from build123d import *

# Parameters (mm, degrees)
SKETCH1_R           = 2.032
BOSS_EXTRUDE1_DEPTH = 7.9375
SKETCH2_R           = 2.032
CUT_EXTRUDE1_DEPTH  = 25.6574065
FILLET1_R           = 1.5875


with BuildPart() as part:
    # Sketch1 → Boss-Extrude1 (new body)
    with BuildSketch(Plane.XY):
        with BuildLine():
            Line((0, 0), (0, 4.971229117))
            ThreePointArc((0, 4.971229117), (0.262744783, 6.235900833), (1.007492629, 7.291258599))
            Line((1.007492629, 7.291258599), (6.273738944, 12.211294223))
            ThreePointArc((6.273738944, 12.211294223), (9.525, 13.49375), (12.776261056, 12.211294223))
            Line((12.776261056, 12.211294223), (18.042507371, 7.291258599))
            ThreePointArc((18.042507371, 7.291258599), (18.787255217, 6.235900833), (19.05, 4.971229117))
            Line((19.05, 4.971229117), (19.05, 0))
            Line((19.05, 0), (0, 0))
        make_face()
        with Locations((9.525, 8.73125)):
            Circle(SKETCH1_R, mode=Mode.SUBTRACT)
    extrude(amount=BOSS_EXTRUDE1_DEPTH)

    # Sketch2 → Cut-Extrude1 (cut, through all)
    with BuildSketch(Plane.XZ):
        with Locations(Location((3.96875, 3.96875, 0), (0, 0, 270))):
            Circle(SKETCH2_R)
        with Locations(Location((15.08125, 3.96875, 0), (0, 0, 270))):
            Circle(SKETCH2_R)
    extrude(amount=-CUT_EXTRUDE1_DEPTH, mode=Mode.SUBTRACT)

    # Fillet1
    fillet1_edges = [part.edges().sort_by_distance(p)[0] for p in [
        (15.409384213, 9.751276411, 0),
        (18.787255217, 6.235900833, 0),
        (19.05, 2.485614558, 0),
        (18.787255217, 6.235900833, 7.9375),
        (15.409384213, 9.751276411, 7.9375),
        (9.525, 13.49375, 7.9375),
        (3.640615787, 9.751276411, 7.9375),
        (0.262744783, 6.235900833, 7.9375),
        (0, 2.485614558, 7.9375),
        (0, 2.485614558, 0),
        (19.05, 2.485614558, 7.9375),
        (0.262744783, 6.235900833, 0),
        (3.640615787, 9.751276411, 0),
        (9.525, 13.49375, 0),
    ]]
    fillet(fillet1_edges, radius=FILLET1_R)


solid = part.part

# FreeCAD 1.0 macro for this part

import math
import FreeCAD as App
import Part
import Sketcher

V = App.Vector
Q = App.Units.Quantity


def edges_at(feature, points):
    """Names of the edges that pass closest to the given points."""
    edges = feature.Shape.Edges
    near = lambda p: min(range(len(edges)), key=lambda i: edges[i].distToShape(Part.Vertex(*p))[0])
    return sorted({f"Edge{near(p) + 1}" for p in points})

doc = App.newDocument("Part")
body = doc.addObject("PartDesign::Body", "Body")

# Sketch on XY plane
sketch1 = body.newObject("Sketcher::SketchObject", "Sketch")
sketch1.AttachmentSupport = (doc.getObject("XY_Plane"), [""])
sketch1.MapMode = "FlatFace"
sketch1.addGeometry(Part.LineSegment(V(0, 5, 0), V(0, 0, 0)), False)
sketch1.addGeometry(Part.LineSegment(V(0, 0, 0), V(19.1, 0, 0)), False)
sketch1.addGeometry(Part.LineSegment(V(19.1, 0, 0), V(19.1, 5, 0)), False)
sketch1.addGeometry(Part.ArcOfCircle(Part.Circle(V(15.9, 5, 0), V(0, 0, 1), 3.2), math.radians(0), math.radians(47)), False)
sketch1.addGeometry(Part.LineSegment(V(18, 7.3, 0), V(12.8, 12.2, 0)), False)
sketch1.addGeometry(Part.ArcOfCircle(Part.Circle(V(9.5, 8.7, 0), V(0, 0, 1), 4.8), math.radians(47), math.radians(133)), False)
sketch1.addGeometry(Part.LineSegment(V(6.3, 12.2, 0), V(1, 7.3, 0)), False)
sketch1.addGeometry(Part.ArcOfCircle(Part.Circle(V(3.2, 5, 0), V(0, 0, 1), 3.2), math.radians(133), math.radians(180)), False)
sketch1.addGeometry(Part.Circle(V(9.5, 8.7, 0), V(0, 0, 1), 2), False)
sketch1.addConstraint(Sketcher.Constraint("Coincident", 0, 2, 1, 1))
sketch1.addConstraint(Sketcher.Constraint("Coincident", 1, 2, 2, 1))
sketch1.addConstraint(Sketcher.Constraint("Tangent", 2, 2, 3, 1))
sketch1.addConstraint(Sketcher.Constraint("Tangent", 3, 2, 4, 1))
sketch1.addConstraint(Sketcher.Constraint("Tangent", 4, 2, 5, 1))
sketch1.addConstraint(Sketcher.Constraint("Tangent", 5, 2, 6, 1))
sketch1.addConstraint(Sketcher.Constraint("Tangent", 6, 2, 7, 1))
sketch1.addConstraint(Sketcher.Constraint("Tangent", 7, 2, 0, 1))
sketch1.addConstraint(Sketcher.Constraint("Vertical", 0))
sketch1.addConstraint(Sketcher.Constraint("Horizontal", 1))
sketch1.addConstraint(Sketcher.Constraint("Vertical", 2))
sketch1.addConstraint(Sketcher.Constraint("Coincident", 0, 2, -1, 1))
sketch1.addConstraint(Sketcher.Constraint("Coincident", 8, 3, 5, 3))
sketch1.addConstraint(Sketcher.Constraint("Equal", 3, 7))
sketch1.addConstraint(Sketcher.Constraint("Horizontal", 3, 3, 7, 3))
sketch1.addConstraint(Sketcher.Constraint("Horizontal", 4, 2, 5, 2))
sketch1.addConstraint(Sketcher.Constraint("Diameter", 8, Q("0.16 in")))
sketch1.addConstraint(Sketcher.Constraint("Radius", 3, Q("0.125 in")))
sketch1.addConstraint(Sketcher.Constraint("Radius", 5, Q("0.1875 in")))
sketch1.addConstraint(Sketcher.Constraint("DistanceX", 1, 1, 1, 2, Q("0.75 in")))
sketch1.addConstraint(Sketcher.Constraint("DistanceY", -1, 1, 5, 3, Q("0.34375 in")))
sketch1.addConstraint(Sketcher.Constraint("DistanceY", 0, 2, 0, 1, Q("4.971229 mm")))
pad1 = body.newObject("PartDesign::Pad", "Pad")
pad1.Profile = sketch1
pad1.Length = Q("0.3125 in")

# Sketch on XZ plane
sketch2 = body.newObject("Sketcher::SketchObject", "Sketch001")
sketch2.AttachmentSupport = (doc.getObject("XZ_Plane"), [""])
sketch2.MapMode = "FlatFace"
sketch2.addGeometry(Part.Circle(V(4, 4, 0), V(0, 0, 1), 2), False)
sketch2.addGeometry(Part.Circle(V(15.1, 4, 0), V(0, 0, 1), 2), False)
sketch2.addConstraint(Sketcher.Constraint("Equal", 0, 1))
sketch2.addConstraint(Sketcher.Constraint("Horizontal", 0, 3, 1, 3))
sketch2.addConstraint(Sketcher.Constraint("Diameter", 0, Q("0.16 in")))
sketch2.addConstraint(Sketcher.Constraint("DistanceX", -1, 1, 0, 3, Q("0.15625 in")))
sketch2.addConstraint(Sketcher.Constraint("DistanceY", -1, 1, 0, 3, Q("0.15625 in")))
sketch2.addConstraint(Sketcher.Constraint("DistanceX", -1, 1, 1, 3, Q("0.59375 in")))
pocket1 = body.newObject("PartDesign::Pocket", "Pocket")
pocket1.Profile = sketch2
pocket1.Type = "ThroughAll"
doc.recompute()

fillet = body.newObject("PartDesign::Fillet", "Fillet")
fillet.Base = (pocket1, edges_at(pocket1, [
    (15.409, 9.751, 0),
    (18.787, 6.236, 0),
    (19.05, 2.486, 0),
    (18.787, 6.236, 7.938),
    (15.409, 9.751, 7.938),
    (9.525, 13.494, 7.938),
    (3.641, 9.751, 7.938),
    (0.263, 6.236, 7.938),
    (0, 2.486, 7.938),
    (0, 2.486, 0),
    (19.05, 2.486, 7.938),
    (0.263, 6.236, 0),
    (3.641, 9.751, 0),
    (9.525, 13.494, 0),
]))
fillet.Radius = Q("0.0625 in")

doc.recompute()
